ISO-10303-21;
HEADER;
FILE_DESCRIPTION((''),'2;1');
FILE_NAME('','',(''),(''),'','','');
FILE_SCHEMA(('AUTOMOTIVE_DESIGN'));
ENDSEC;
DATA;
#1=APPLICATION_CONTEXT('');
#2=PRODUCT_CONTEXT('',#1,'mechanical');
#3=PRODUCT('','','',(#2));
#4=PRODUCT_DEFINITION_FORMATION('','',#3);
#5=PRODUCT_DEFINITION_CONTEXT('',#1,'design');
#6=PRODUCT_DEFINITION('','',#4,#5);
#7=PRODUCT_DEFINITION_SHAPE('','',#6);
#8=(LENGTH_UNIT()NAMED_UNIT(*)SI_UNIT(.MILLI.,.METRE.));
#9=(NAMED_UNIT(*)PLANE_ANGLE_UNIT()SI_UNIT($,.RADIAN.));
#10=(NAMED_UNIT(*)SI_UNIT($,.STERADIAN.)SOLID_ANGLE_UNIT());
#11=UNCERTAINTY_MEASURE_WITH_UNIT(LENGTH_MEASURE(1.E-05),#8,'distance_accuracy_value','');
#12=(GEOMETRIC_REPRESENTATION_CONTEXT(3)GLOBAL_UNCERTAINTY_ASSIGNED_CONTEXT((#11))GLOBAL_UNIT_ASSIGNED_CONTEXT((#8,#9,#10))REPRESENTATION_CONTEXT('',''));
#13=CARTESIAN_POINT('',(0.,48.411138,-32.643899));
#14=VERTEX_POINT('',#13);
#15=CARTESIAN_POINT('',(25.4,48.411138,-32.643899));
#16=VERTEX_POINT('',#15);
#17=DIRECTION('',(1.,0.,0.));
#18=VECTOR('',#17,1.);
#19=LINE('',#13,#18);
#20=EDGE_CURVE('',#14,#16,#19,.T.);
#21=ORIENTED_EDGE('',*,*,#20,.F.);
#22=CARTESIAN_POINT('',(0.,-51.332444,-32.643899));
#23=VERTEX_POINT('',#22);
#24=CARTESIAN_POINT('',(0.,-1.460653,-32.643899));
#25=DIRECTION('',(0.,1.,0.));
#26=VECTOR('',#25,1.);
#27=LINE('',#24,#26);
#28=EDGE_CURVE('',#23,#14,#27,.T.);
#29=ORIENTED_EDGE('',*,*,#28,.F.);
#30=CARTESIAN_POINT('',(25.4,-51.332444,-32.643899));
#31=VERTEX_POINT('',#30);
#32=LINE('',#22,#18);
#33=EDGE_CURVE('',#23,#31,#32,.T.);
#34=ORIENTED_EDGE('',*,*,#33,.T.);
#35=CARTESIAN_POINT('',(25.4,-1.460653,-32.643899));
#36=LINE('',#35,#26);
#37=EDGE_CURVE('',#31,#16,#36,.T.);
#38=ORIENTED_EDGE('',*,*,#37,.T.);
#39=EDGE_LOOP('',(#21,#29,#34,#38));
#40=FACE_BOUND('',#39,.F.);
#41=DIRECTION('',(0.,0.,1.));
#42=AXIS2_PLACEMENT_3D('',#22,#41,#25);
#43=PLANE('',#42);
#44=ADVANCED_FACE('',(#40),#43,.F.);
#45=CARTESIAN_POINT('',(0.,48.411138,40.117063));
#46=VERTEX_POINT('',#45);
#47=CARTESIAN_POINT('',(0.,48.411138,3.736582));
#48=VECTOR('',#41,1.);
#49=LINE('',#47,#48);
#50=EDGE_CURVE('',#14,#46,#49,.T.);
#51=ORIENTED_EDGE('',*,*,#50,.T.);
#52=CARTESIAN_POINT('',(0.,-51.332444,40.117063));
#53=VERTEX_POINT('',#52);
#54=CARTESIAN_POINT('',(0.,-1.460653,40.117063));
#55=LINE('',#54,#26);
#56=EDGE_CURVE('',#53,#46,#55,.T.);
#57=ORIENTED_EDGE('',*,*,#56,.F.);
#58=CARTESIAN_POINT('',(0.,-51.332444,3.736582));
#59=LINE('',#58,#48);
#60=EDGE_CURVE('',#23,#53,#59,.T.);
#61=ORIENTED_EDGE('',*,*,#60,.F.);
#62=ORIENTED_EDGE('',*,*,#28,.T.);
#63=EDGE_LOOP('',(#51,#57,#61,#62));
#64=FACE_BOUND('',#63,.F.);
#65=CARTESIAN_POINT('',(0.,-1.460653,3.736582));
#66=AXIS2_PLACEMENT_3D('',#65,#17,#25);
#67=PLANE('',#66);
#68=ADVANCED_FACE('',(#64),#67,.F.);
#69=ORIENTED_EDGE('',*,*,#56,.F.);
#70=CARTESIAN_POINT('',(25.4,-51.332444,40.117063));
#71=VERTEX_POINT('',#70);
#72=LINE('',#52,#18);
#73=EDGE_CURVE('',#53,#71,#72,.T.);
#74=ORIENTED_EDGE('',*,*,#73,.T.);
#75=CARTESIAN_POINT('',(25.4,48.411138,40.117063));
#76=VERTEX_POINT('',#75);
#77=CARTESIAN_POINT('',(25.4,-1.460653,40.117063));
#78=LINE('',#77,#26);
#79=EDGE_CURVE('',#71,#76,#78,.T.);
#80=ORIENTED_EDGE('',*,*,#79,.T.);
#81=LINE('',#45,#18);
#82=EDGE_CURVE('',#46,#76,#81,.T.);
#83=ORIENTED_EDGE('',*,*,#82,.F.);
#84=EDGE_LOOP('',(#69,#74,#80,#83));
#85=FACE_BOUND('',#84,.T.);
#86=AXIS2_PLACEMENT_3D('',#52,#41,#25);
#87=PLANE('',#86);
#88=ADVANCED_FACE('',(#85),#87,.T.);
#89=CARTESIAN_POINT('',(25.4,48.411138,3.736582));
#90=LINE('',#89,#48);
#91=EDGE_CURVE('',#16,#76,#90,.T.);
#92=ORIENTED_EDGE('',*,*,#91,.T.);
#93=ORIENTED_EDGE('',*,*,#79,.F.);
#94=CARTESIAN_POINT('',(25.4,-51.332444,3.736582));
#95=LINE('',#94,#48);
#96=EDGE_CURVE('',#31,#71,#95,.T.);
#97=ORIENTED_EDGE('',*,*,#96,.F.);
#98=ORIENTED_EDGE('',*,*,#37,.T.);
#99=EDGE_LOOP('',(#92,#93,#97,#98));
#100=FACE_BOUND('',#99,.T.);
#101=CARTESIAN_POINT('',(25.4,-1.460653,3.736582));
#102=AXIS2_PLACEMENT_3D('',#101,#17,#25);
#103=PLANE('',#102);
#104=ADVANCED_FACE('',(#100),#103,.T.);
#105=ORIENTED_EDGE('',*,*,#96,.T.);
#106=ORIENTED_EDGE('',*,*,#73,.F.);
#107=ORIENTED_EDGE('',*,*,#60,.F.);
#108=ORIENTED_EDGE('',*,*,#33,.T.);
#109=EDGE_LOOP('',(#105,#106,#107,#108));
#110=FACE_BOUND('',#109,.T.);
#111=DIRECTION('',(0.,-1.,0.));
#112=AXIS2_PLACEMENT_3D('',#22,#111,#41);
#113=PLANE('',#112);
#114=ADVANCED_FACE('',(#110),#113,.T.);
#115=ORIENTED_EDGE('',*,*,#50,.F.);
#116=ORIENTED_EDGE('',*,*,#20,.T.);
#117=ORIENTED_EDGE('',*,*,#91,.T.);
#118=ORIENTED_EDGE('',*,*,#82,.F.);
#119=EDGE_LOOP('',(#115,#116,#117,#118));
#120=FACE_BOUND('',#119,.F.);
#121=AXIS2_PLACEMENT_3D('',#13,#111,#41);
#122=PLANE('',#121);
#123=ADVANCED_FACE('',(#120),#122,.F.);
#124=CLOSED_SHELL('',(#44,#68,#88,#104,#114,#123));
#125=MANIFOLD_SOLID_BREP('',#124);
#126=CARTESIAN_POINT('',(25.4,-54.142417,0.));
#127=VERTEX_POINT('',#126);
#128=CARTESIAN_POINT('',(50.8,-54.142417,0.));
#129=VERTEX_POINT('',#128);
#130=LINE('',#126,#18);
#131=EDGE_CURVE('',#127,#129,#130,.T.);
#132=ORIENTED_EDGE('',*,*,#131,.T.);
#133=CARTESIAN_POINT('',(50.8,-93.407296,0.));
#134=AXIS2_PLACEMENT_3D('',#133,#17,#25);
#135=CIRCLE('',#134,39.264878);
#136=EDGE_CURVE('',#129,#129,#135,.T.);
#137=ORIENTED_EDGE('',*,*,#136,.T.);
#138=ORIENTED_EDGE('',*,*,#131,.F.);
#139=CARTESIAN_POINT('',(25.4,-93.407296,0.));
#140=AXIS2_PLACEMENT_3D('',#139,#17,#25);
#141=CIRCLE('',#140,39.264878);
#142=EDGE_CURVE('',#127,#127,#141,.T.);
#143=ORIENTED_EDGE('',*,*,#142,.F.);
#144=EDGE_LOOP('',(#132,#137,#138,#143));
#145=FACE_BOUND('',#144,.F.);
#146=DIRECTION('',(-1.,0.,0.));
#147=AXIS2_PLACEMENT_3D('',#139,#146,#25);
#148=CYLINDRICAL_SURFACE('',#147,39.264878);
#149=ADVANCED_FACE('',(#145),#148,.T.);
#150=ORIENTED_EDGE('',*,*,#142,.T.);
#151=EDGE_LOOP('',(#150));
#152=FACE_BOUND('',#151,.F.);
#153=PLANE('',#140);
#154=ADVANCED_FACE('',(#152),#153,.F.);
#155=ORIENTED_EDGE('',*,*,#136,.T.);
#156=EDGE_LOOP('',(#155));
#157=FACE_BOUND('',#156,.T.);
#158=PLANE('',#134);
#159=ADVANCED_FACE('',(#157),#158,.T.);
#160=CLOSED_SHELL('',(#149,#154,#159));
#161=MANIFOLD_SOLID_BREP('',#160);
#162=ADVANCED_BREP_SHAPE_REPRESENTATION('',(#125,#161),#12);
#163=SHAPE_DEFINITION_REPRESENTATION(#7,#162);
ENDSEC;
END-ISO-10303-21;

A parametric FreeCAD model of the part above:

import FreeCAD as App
import Part
import Sketcher
Q = App.Units.Quantity

doc = App.newDocument("Part")
body = doc.addObject("PartDesign::Body", "Body")

# Sketch on YZ plane
sketch1 = body.newObject("Sketcher::SketchObject", "Sketch")
sketch1.AttachmentSupport = (doc.getObject("YZ_Plane"), [""])
sketch1.MapMode = "FlatFace"
sketch1.addGeometry(Part.LineSegment(App.Vector(-51, 40, 0), App.Vector(-51, -33, 0)), False)
sketch1.addGeometry(Part.LineSegment(App.Vector(-51, -33, 0), App.Vector(48, -33, 0)), False)
sketch1.addGeometry(Part.LineSegment(App.Vector(48, -33, 0), App.Vector(48, 40, 0)), False)
sketch1.addGeometry(Part.LineSegment(App.Vector(48, 40, 0), App.Vector(-51, 40, 0)), False)
sketch1.addConstraint(Sketcher.Constraint("Coincident", 0, 2, 1, 1))
sketch1.addConstraint(Sketcher.Constraint("Coincident", 1, 2, 2, 1))
sketch1.addConstraint(Sketcher.Constraint("Coincident", 2, 2, 3, 1))
sketch1.addConstraint(Sketcher.Constraint("Coincident", 3, 2, 0, 1))
sketch1.addConstraint(Sketcher.Constraint("Vertical", 0))
sketch1.addConstraint(Sketcher.Constraint("Horizontal", 1))
sketch1.addConstraint(Sketcher.Constraint("Vertical", 2))
sketch1.addConstraint(Sketcher.Constraint("Horizontal", 3))
sketch1.addConstraint(Sketcher.Constraint("DistanceY", 0, 2, 0, 1, 72.760962))
sketch1.addConstraint(Sketcher.Constraint("DistanceY", 0, 2, -1, 1, 32.643899))
sketch1.addConstraint(Sketcher.Constraint("DistanceX", 1, 1, 1, 2, 99.743582))
sketch1.addConstraint(Sketcher.Constraint("DistanceX", -1, 1, 1, 2, 48.411138))
pad1 = body.newObject("PartDesign::Pad", "Pad")
pad1.Profile = sketch1
pad1.Length = Q("1 in")
body2 = doc.addObject("PartDesign::Body", "Body001")

# Sketch on YZ plane
sketch2 = body2.newObject("Sketcher::SketchObject", "Sketch001")
sketch2.AttachmentSupport = (doc.getObject("YZ_Plane001"), [""])
sketch2.MapMode = "FlatFace"
sketch2.AttachmentOffset = App.Placement(App.Vector(0, 0, 1 * 25.4), App.Rotation())
sketch2.addGeometry(Part.Circle(App.Vector(-93, 0, 0), App.Vector(0, 0, 1), 39), False)
sketch2.addConstraint(Sketcher.Constraint("PointOnObject", 0, 3, -1))
sketch2.addConstraint(Sketcher.Constraint("Diameter", 0, 78.529757))
sketch2.addConstraint(Sketcher.Constraint("DistanceX", 0, 3, -1, 1, 93.407296))
pad2 = body2.newObject("PartDesign::Pad", "Pad001")
pad2.Profile = sketch2
pad2.Length = Q("1 in")

doc.recompute()
